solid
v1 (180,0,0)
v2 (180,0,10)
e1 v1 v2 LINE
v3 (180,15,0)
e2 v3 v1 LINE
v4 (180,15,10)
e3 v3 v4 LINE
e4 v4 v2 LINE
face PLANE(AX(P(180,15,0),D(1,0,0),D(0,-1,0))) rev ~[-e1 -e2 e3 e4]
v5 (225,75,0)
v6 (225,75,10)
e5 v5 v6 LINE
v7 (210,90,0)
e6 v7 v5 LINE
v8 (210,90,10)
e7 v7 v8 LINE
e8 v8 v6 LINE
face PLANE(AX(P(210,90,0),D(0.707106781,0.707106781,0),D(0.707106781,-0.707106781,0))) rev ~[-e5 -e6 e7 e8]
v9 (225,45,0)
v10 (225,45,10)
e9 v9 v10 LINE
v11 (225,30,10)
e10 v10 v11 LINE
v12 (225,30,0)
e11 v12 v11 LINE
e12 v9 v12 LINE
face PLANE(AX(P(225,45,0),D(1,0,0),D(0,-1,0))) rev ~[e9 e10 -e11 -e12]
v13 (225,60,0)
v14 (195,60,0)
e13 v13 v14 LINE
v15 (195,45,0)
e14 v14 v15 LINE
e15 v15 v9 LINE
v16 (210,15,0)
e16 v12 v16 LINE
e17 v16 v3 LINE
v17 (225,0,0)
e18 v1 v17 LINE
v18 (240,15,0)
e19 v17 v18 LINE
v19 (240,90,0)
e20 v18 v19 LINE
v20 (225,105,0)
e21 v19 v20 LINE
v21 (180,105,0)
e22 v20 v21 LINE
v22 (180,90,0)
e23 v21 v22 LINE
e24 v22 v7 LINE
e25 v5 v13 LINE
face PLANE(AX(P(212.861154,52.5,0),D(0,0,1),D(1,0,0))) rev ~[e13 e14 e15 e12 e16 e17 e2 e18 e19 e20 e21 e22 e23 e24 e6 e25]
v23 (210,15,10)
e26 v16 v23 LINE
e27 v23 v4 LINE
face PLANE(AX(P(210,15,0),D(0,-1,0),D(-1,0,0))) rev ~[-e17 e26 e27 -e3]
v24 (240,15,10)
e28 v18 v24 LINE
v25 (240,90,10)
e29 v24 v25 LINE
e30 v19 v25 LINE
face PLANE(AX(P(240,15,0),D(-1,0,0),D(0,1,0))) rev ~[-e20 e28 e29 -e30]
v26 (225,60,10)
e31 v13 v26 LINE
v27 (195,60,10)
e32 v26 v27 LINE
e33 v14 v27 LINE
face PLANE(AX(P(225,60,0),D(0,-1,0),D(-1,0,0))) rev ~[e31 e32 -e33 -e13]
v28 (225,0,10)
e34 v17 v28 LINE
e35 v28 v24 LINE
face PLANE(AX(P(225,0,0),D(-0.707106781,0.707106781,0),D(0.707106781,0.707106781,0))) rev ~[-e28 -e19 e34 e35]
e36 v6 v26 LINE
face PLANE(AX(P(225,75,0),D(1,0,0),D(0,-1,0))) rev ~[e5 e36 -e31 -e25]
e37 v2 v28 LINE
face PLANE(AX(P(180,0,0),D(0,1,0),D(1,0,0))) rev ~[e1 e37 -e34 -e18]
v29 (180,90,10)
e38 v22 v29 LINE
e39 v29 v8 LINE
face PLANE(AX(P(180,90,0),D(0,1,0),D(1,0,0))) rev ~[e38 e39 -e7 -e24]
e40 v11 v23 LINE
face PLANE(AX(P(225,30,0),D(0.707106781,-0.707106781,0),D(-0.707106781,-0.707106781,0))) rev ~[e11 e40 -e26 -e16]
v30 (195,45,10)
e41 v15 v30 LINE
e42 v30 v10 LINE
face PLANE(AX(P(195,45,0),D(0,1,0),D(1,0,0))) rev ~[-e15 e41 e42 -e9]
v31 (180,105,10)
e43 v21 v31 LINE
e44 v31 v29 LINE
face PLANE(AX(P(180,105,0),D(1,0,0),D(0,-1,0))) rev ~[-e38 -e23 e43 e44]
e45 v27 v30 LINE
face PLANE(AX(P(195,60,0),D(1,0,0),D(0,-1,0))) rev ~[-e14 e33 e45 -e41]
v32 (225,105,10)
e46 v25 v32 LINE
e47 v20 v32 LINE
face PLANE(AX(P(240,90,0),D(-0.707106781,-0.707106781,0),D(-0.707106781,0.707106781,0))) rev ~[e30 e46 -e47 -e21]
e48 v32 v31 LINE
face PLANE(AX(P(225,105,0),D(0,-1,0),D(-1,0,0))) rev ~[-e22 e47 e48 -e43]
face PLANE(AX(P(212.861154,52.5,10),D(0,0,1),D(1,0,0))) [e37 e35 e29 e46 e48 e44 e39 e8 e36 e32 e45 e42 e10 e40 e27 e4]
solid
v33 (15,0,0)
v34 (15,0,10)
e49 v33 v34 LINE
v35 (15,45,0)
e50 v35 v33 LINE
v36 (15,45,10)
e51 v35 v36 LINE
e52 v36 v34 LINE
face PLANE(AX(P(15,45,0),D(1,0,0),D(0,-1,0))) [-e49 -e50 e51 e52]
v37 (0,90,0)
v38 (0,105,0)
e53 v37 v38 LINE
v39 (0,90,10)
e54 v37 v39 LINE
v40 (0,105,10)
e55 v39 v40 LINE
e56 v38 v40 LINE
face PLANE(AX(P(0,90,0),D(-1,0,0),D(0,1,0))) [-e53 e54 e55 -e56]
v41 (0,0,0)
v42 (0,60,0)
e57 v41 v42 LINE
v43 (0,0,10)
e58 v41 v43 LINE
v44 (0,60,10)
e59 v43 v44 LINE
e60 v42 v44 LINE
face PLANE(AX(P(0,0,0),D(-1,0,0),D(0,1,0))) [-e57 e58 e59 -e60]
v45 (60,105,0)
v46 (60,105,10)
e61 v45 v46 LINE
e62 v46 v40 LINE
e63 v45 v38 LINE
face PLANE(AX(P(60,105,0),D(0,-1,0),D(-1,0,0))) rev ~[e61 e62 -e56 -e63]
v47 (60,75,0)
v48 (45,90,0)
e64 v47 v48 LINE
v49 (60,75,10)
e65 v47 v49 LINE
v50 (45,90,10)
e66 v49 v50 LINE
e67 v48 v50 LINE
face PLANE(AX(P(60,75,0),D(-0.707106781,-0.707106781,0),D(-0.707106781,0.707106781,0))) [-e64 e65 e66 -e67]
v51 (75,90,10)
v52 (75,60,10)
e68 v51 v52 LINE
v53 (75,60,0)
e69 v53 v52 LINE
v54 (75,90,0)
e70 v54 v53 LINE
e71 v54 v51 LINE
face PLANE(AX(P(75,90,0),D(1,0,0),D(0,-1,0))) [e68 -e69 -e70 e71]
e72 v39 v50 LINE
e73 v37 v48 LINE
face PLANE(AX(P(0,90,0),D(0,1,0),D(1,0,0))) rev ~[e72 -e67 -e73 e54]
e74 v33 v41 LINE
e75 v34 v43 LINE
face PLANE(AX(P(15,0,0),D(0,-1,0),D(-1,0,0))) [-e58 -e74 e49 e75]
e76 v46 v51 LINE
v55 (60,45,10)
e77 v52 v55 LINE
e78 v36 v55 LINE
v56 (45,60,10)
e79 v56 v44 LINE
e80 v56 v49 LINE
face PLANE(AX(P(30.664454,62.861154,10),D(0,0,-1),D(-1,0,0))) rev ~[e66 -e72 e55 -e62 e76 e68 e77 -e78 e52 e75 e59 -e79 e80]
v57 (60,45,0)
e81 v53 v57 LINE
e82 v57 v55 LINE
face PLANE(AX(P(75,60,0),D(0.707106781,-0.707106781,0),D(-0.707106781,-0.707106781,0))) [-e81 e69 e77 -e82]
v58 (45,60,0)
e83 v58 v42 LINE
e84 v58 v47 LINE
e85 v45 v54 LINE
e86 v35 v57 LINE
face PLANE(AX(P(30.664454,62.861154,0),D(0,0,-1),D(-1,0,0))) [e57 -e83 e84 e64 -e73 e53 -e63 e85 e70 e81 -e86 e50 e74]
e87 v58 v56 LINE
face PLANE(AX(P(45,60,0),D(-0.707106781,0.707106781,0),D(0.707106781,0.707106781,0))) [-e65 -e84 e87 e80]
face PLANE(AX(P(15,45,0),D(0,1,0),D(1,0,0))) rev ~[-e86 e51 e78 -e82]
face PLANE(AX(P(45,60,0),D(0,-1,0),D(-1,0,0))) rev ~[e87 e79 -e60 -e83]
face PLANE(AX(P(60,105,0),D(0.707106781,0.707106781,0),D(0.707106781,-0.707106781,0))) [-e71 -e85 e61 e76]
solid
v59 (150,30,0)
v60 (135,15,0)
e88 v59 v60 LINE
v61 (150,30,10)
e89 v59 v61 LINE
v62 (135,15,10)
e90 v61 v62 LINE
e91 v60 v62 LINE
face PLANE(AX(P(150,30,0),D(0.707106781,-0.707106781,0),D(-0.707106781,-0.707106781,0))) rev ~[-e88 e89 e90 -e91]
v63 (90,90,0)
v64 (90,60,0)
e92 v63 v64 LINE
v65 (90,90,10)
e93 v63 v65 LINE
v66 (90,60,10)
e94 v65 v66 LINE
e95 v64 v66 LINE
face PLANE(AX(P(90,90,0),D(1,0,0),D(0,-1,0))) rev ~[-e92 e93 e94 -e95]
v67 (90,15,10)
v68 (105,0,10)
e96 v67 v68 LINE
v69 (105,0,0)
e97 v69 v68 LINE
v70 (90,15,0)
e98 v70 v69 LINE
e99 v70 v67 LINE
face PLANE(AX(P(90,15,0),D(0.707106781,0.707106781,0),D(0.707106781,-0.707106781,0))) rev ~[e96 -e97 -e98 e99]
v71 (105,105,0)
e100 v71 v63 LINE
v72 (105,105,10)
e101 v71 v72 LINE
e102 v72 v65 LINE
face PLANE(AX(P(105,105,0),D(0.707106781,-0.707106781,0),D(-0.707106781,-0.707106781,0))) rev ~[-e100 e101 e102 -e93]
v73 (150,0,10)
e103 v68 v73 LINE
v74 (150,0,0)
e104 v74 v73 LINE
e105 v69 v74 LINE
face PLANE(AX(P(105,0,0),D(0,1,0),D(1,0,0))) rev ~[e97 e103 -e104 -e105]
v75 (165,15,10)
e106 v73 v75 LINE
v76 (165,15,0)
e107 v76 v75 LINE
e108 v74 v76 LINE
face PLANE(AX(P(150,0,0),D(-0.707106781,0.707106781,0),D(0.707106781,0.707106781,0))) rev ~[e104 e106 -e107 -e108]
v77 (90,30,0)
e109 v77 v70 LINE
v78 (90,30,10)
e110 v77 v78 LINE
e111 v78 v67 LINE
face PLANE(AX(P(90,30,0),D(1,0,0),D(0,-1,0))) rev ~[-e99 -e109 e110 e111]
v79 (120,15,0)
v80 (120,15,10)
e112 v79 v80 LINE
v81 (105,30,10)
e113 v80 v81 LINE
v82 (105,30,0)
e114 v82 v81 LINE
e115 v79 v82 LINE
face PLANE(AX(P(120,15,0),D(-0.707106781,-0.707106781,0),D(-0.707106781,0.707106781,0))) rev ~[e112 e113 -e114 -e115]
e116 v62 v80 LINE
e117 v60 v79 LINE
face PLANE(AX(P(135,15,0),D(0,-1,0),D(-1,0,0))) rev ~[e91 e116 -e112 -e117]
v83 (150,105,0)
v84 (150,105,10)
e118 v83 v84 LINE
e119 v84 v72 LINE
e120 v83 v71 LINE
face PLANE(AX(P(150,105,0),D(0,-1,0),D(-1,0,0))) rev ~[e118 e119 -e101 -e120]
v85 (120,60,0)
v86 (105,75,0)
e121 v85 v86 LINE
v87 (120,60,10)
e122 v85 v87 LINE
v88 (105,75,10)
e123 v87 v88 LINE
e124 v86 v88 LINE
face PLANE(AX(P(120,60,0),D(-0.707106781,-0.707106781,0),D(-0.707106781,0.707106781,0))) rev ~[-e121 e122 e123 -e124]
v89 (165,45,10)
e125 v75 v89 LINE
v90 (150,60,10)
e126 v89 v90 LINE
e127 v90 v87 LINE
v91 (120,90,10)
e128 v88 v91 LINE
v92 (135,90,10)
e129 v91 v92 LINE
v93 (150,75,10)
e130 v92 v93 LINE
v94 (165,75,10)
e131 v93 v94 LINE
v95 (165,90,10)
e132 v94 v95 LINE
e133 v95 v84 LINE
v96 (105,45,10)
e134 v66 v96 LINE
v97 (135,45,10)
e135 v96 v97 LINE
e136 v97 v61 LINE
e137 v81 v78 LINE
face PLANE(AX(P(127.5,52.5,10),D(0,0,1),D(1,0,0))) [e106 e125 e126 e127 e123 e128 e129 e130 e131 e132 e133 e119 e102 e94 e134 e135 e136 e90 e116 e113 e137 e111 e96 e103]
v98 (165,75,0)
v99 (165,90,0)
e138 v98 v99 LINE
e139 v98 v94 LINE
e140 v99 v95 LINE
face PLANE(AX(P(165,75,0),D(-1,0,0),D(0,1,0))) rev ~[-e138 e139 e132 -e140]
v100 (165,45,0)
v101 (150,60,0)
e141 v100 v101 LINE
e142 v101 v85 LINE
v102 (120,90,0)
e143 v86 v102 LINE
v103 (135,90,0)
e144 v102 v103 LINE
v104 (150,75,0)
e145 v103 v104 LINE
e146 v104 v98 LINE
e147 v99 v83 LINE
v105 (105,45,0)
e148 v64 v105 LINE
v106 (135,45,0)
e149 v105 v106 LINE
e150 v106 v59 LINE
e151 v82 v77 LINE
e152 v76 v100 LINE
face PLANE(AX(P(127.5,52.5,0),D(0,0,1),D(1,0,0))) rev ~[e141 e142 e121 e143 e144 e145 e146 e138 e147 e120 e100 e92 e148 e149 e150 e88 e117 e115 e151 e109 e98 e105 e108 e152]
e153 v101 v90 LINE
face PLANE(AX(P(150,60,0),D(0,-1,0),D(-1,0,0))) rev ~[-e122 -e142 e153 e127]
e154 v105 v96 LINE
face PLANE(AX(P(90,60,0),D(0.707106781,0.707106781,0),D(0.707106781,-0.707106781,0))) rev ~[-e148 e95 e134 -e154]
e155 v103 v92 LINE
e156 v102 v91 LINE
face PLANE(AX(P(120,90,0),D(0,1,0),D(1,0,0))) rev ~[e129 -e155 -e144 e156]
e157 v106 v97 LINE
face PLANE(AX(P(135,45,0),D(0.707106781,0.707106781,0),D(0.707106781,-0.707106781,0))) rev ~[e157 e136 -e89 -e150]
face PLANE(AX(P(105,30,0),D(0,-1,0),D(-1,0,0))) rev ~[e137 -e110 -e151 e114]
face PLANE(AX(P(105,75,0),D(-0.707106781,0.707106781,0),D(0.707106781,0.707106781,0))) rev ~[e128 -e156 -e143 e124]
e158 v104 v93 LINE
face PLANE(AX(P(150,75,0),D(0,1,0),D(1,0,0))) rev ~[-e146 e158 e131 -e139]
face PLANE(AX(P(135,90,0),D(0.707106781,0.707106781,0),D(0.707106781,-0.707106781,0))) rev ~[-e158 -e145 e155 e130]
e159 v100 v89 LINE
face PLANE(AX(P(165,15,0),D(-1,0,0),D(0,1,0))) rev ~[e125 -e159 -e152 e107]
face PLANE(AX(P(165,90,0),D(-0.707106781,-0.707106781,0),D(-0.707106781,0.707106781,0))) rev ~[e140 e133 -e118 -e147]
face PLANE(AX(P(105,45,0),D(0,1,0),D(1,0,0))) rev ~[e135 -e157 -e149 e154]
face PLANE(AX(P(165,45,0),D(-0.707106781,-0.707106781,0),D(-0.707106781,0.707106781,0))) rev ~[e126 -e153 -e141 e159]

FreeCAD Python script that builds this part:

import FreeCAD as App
import Part
import Sketcher
from FreeCAD import Vector
Q = App.Units.Quantity


def add_polygon(sketch, points):
    """Adds a closed chain of lines whose ends are joined by coincident constraints."""
    first, n = sketch.GeometryCount, len(points)
    for a, b in zip(points, points[1:] + points[:1]):
        sketch.addGeometry(Part.LineSegment(App.Vector(*a, 0), App.Vector(*b, 0)), False)
    for i in range(n):
        sketch.addConstraint(Sketcher.Constraint("Coincident", first + i, 2, first + (i + 1) % n, 1))

doc = App.newDocument("Part")
body = doc.addObject("PartDesign::Body", "Body")

# Sketch on XY plane
sketch1 = doc.addObject("Sketcher::SketchObject", "Sketch")
body.addObject(sketch1)
sketch1.AttachmentSupport = (doc.XY_Plane, [""])
sketch1.MapMode = "FlatFace"
add_polygon(sketch1, [(0, 105), (0, 90), (45, 90), (60, 75), (45, 60), (0, 60), (0, 0), (15, 0), (15, 45), (60, 45), (75, 60), (75, 90), (60, 105)])  # lines 0-12
sketch1.addConstraint(Sketcher.Constraint("Vertical", 0))
sketch1.addConstraint(Sketcher.Constraint("Horizontal", 1))
sketch1.addConstraint(Sketcher.Constraint("Horizontal", 4))
sketch1.addConstraint(Sketcher.Constraint("Vertical", 5))
sketch1.addConstraint(Sketcher.Constraint("Horizontal", 6))
sketch1.addConstraint(Sketcher.Constraint("Vertical", 7))
sketch1.addConstraint(Sketcher.Constraint("Horizontal", 8))
sketch1.addConstraint(Sketcher.Constraint("Vertical", 10))
sketch1.addConstraint(Sketcher.Constraint("Horizontal", 12))
sketch1.addConstraint(Sketcher.Constraint("Coincident", 5, 2, -1, 1))
sketch1.addConstraint(Sketcher.Constraint("PointOnObject", 0, 2, -2))
sketch1.addConstraint(Sketcher.Constraint("Perpendicular", 2, 3))
sketch1.addConstraint(Sketcher.Constraint("Parallel", 3, 9))
sketch1.addConstraint(Sketcher.Constraint("Perpendicular", 9, 11))
sketch1.addConstraint(Sketcher.Constraint("Horizontal", 4, 2, 9, 2))
sketch1.addConstraint(Sketcher.Constraint("Horizontal", 1, 2, 10, 2))
sketch1.addConstraint(Sketcher.Constraint("Vertical", 1, 2, 3, 2))
sketch1.addConstraint(Sketcher.Constraint("Vertical", 2, 2, 8, 2))
sketch1.addConstraint(Sketcher.Constraint("Vertical", 8, 2, 11, 2))
sketch1.addConstraint(Sketcher.Constraint("Equal", 4, 8))
sketch1.addConstraint(Sketcher.Constraint("Equal", 6, 0))
sketch1.addConstraint(Sketcher.Constraint("Equal", 12, 5))
sketch1.addConstraint(Sketcher.Constraint("Equal", 8, 7))
sketch1.addConstraint(Sketcher.Constraint("DistanceX", 1, 1, 1, 2, Q("45 mm")))
sketch1.addConstraint(Sketcher.Constraint("DistanceX", 6, 1, 6, 2, Q("15 mm")))
pad1 = doc.addObject("PartDesign::Pad", "Pad")
body.addObject(pad1)
pad1.Profile = sketch1
pad1.Length = 10
body2 = doc.addObject("PartDesign::Body", "Body001")

# Sketch on XY plane
sketch2 = doc.addObject("Sketcher::SketchObject", "Sketch001")
body2.addObject(sketch2)
sketch2.AttachmentSupport = (doc.getObject("XY_Plane001"), [""])
sketch2.MapMode = "FlatFace"
add_polygon(sketch2, [(105, 30), (90, 30), (90, 15), (105, 0), (150, 0), (165, 15), (165, 45), (150, 60), (120, 60), (105, 75), (120, 90), (135, 90), (150, 75), (165, 75), (165, 90), (150, 105), (105, 105), (90, 90), (90, 60), (105, 45), (135, 45), (150, 30), (135, 15), (120, 15)])  # lines 0-23
sketch2.addConstraint(Sketcher.Constraint("Horizontal", 0))
sketch2.addConstraint(Sketcher.Constraint("Vertical", 1))
sketch2.addConstraint(Sketcher.Constraint("Horizontal", 3))
sketch2.addConstraint(Sketcher.Constraint("Vertical", 5))
sketch2.addConstraint(Sketcher.Constraint("Horizontal", 7))
sketch2.addConstraint(Sketcher.Constraint("Horizontal", 10))
sketch2.addConstraint(Sketcher.Constraint("Horizontal", 12))
sketch2.addConstraint(Sketcher.Constraint("Vertical", 13))
sketch2.addConstraint(Sketcher.Constraint("Horizontal", 15))
sketch2.addConstraint(Sketcher.Constraint("Vertical", 17))
sketch2.addConstraint(Sketcher.Constraint("Horizontal", 19))
sketch2.addConstraint(Sketcher.Constraint("Horizontal", 22))
sketch2.addConstraint(Sketcher.Constraint("PointOnObject", 2, 2, -1))
sketch2.addConstraint(Sketcher.Constraint("Perpendicular", 2, 4))
sketch2.addConstraint(Sketcher.Constraint("Perpendicular", 4, 6))
sketch2.addConstraint(Sketcher.Constraint("Parallel", 6, 8))
sketch2.addConstraint(Sketcher.Constraint("Perpendicular", 8, 9))
sketch2.addConstraint(Sketcher.Constraint("Perpendicular", 9, 11))
sketch2.addConstraint(Sketcher.Constraint("Parallel", 11, 14))
sketch2.addConstraint(Sketcher.Constraint("Perpendicular", 14, 16))
sketch2.addConstraint(Sketcher.Constraint("Perpendicular", 16, 18))
sketch2.addConstraint(Sketcher.Constraint("Parallel", 18, 20))
sketch2.addConstraint(Sketcher.Constraint("Perpendicular", 20, 21))
sketch2.addConstraint(Sketcher.Constraint("Perpendicular", 21, 23))
sketch2.addConstraint(Sketcher.Constraint("Horizontal", 1, 2, 4, 2))
sketch2.addConstraint(Sketcher.Constraint("Horizontal", 8, 2, 11, 2))
sketch2.addConstraint(Sketcher.Constraint("Horizontal", 10, 2, 13, 2))
sketch2.addConstraint(Sketcher.Constraint("Horizontal", 13, 2, 16, 2))
sketch2.addConstraint(Sketcher.Constraint("Horizontal", 7, 2, 17, 2))
sketch2.addConstraint(Sketcher.Constraint("Horizontal", 5, 2, 18, 2))
sketch2.addConstraint(Sketcher.Constraint("Horizontal", 0, 2, 20, 2))
sketch2.addConstraint(Sketcher.Constraint("Horizontal", 4, 2, 21, 2))
sketch2.addConstraint(Sketcher.Constraint("Vertical", 3, 2, 6, 2))
sketch2.addConstraint(Sketcher.Constraint("Vertical", 2, 2, 8, 2))
sketch2.addConstraint(Sketcher.Constraint("Vertical", 7, 2, 9, 2))
sketch2.addConstraint(Sketcher.Constraint("Vertical", 6, 2, 11, 2))
sketch2.addConstraint(Sketcher.Constraint("Vertical", 5, 2, 12, 2))
sketch2.addConstraint(Sketcher.Constraint("Vertical", 11, 2, 14, 2))
sketch2.addConstraint(Sketcher.Constraint("Vertical", 8, 2, 15, 2))
sketch2.addConstraint(Sketcher.Constraint("Vertical", 1, 2, 16, 2))
sketch2.addConstraint(Sketcher.Constraint("Vertical", 10, 2, 19, 2))
sketch2.addConstraint(Sketcher.Constraint("Vertical", 14, 2, 20, 2))
sketch2.addConstraint(Sketcher.Constraint("Vertical", 19, 2, 21, 2))
sketch2.addConstraint(Sketcher.Constraint("Vertical", 9, 2, 22, 2))
sketch2.addConstraint(Sketcher.Constraint("Equal", 0, 10))
sketch2.addConstraint(Sketcher.Constraint("Equal", 22, 1))
sketch2.addConstraint(Sketcher.Constraint("DistanceX", 0, 2, 0, 1, Q("15 mm")))
sketch2.addConstraint(Sketcher.Constraint("DistanceX", -1, 1, 0, 2, Q("90 mm")))
pad2 = doc.addObject("PartDesign::Pad", "Pad001")
body2.addObject(pad2)
pad2.Profile = sketch2
pad2.Length = 10
body3 = doc.addObject("PartDesign::Body", "Body002")

# Sketch on XY plane
sketch3 = doc.addObject("Sketcher::SketchObject", "Sketch002")
body3.addObject(sketch3)
sketch3.AttachmentSupport = (doc.getObject("XY_Plane002"), [""])
sketch3.MapMode = "FlatFace"
add_polygon(sketch3, [(180, 15), (180, 0), (225, 0), (240, 15), (240, 90), (225, 105), (180, 105), (180, 90), (210, 90), (225, 75), (225, 60), (195, 60), (195, 45), (225, 45), (225, 30), (210, 15)])  # lines 0-15
sketch3.addConstraint(Sketcher.Constraint("Vertical", 0))
sketch3.addConstraint(Sketcher.Constraint("Horizontal", 1))
sketch3.addConstraint(Sketcher.Constraint("Vertical", 3))
sketch3.addConstraint(Sketcher.Constraint("Horizontal", 5))
sketch3.addConstraint(Sketcher.Constraint("Vertical", 6))
sketch3.addConstraint(Sketcher.Constraint("Horizontal", 7))
sketch3.addConstraint(Sketcher.Constraint("Vertical", 9))
sketch3.addConstraint(Sketcher.Constraint("Horizontal", 10))
sketch3.addConstraint(Sketcher.Constraint("Vertical", 11))
sketch3.addConstraint(Sketcher.Constraint("Horizontal", 12))
sketch3.addConstraint(Sketcher.Constraint("Vertical", 13))
sketch3.addConstraint(Sketcher.Constraint("Horizontal", 15))
sketch3.addConstraint(Sketcher.Constraint("PointOnObject", 0, 2, -1))
sketch3.addConstraint(Sketcher.Constraint("Perpendicular", 2, 4))
sketch3.addConstraint(Sketcher.Constraint("Parallel", 4, 8))
sketch3.addConstraint(Sketcher.Constraint("Perpendicular", 8, 14))
sketch3.addConstraint(Sketcher.Constraint("Horizontal", 3, 2, 6, 2))
sketch3.addConstraint(Sketcher.Constraint("Horizontal", 2, 2, 14, 2))
sketch3.addConstraint(Sketcher.Constraint("Vertical", 1, 2, 4, 2))
sketch3.addConstraint(Sketcher.Constraint("Vertical", 0, 2, 5, 2))
sketch3.addConstraint(Sketcher.Constraint("Vertical", 4, 2, 8, 2))
sketch3.addConstraint(Sketcher.Constraint("Vertical", 9, 2, 12, 2))
sketch3.addConstraint(Sketcher.Constraint("Vertical", 7, 2, 14, 2))
sketch3.addConstraint(Sketcher.Constraint("Equal", 7, 10))
sketch3.addConstraint(Sketcher.Constraint("Equal", 0, 6))
sketch3.addConstraint(Sketcher.Constraint("Equal", 6, 9))
sketch3.addConstraint(Sketcher.Constraint("Equal", 9, 11))
sketch3.addConstraint(Sketcher.Constraint("Equal", 11, 13))
sketch3.addConstraint(Sketcher.Constraint("Equal", 4, 8))
sketch3.addConstraint(Sketcher.Constraint("DistanceX", 1, 1, 1, 2, Q("45 mm")))
sketch3.addConstraint(Sketcher.Constraint("DistanceX", 7, 1, 7, 2, Q("30 mm")))
sketch3.addConstraint(Sketcher.Constraint("DistanceX", -1, 1, 0, 2, Q("180 mm")))
pad3 = doc.addObject("PartDesign::Pad", "Pad002")
body3.addObject(pad3)
pad3.Profile = sketch3
pad3.Length = 10

doc.recompute()
